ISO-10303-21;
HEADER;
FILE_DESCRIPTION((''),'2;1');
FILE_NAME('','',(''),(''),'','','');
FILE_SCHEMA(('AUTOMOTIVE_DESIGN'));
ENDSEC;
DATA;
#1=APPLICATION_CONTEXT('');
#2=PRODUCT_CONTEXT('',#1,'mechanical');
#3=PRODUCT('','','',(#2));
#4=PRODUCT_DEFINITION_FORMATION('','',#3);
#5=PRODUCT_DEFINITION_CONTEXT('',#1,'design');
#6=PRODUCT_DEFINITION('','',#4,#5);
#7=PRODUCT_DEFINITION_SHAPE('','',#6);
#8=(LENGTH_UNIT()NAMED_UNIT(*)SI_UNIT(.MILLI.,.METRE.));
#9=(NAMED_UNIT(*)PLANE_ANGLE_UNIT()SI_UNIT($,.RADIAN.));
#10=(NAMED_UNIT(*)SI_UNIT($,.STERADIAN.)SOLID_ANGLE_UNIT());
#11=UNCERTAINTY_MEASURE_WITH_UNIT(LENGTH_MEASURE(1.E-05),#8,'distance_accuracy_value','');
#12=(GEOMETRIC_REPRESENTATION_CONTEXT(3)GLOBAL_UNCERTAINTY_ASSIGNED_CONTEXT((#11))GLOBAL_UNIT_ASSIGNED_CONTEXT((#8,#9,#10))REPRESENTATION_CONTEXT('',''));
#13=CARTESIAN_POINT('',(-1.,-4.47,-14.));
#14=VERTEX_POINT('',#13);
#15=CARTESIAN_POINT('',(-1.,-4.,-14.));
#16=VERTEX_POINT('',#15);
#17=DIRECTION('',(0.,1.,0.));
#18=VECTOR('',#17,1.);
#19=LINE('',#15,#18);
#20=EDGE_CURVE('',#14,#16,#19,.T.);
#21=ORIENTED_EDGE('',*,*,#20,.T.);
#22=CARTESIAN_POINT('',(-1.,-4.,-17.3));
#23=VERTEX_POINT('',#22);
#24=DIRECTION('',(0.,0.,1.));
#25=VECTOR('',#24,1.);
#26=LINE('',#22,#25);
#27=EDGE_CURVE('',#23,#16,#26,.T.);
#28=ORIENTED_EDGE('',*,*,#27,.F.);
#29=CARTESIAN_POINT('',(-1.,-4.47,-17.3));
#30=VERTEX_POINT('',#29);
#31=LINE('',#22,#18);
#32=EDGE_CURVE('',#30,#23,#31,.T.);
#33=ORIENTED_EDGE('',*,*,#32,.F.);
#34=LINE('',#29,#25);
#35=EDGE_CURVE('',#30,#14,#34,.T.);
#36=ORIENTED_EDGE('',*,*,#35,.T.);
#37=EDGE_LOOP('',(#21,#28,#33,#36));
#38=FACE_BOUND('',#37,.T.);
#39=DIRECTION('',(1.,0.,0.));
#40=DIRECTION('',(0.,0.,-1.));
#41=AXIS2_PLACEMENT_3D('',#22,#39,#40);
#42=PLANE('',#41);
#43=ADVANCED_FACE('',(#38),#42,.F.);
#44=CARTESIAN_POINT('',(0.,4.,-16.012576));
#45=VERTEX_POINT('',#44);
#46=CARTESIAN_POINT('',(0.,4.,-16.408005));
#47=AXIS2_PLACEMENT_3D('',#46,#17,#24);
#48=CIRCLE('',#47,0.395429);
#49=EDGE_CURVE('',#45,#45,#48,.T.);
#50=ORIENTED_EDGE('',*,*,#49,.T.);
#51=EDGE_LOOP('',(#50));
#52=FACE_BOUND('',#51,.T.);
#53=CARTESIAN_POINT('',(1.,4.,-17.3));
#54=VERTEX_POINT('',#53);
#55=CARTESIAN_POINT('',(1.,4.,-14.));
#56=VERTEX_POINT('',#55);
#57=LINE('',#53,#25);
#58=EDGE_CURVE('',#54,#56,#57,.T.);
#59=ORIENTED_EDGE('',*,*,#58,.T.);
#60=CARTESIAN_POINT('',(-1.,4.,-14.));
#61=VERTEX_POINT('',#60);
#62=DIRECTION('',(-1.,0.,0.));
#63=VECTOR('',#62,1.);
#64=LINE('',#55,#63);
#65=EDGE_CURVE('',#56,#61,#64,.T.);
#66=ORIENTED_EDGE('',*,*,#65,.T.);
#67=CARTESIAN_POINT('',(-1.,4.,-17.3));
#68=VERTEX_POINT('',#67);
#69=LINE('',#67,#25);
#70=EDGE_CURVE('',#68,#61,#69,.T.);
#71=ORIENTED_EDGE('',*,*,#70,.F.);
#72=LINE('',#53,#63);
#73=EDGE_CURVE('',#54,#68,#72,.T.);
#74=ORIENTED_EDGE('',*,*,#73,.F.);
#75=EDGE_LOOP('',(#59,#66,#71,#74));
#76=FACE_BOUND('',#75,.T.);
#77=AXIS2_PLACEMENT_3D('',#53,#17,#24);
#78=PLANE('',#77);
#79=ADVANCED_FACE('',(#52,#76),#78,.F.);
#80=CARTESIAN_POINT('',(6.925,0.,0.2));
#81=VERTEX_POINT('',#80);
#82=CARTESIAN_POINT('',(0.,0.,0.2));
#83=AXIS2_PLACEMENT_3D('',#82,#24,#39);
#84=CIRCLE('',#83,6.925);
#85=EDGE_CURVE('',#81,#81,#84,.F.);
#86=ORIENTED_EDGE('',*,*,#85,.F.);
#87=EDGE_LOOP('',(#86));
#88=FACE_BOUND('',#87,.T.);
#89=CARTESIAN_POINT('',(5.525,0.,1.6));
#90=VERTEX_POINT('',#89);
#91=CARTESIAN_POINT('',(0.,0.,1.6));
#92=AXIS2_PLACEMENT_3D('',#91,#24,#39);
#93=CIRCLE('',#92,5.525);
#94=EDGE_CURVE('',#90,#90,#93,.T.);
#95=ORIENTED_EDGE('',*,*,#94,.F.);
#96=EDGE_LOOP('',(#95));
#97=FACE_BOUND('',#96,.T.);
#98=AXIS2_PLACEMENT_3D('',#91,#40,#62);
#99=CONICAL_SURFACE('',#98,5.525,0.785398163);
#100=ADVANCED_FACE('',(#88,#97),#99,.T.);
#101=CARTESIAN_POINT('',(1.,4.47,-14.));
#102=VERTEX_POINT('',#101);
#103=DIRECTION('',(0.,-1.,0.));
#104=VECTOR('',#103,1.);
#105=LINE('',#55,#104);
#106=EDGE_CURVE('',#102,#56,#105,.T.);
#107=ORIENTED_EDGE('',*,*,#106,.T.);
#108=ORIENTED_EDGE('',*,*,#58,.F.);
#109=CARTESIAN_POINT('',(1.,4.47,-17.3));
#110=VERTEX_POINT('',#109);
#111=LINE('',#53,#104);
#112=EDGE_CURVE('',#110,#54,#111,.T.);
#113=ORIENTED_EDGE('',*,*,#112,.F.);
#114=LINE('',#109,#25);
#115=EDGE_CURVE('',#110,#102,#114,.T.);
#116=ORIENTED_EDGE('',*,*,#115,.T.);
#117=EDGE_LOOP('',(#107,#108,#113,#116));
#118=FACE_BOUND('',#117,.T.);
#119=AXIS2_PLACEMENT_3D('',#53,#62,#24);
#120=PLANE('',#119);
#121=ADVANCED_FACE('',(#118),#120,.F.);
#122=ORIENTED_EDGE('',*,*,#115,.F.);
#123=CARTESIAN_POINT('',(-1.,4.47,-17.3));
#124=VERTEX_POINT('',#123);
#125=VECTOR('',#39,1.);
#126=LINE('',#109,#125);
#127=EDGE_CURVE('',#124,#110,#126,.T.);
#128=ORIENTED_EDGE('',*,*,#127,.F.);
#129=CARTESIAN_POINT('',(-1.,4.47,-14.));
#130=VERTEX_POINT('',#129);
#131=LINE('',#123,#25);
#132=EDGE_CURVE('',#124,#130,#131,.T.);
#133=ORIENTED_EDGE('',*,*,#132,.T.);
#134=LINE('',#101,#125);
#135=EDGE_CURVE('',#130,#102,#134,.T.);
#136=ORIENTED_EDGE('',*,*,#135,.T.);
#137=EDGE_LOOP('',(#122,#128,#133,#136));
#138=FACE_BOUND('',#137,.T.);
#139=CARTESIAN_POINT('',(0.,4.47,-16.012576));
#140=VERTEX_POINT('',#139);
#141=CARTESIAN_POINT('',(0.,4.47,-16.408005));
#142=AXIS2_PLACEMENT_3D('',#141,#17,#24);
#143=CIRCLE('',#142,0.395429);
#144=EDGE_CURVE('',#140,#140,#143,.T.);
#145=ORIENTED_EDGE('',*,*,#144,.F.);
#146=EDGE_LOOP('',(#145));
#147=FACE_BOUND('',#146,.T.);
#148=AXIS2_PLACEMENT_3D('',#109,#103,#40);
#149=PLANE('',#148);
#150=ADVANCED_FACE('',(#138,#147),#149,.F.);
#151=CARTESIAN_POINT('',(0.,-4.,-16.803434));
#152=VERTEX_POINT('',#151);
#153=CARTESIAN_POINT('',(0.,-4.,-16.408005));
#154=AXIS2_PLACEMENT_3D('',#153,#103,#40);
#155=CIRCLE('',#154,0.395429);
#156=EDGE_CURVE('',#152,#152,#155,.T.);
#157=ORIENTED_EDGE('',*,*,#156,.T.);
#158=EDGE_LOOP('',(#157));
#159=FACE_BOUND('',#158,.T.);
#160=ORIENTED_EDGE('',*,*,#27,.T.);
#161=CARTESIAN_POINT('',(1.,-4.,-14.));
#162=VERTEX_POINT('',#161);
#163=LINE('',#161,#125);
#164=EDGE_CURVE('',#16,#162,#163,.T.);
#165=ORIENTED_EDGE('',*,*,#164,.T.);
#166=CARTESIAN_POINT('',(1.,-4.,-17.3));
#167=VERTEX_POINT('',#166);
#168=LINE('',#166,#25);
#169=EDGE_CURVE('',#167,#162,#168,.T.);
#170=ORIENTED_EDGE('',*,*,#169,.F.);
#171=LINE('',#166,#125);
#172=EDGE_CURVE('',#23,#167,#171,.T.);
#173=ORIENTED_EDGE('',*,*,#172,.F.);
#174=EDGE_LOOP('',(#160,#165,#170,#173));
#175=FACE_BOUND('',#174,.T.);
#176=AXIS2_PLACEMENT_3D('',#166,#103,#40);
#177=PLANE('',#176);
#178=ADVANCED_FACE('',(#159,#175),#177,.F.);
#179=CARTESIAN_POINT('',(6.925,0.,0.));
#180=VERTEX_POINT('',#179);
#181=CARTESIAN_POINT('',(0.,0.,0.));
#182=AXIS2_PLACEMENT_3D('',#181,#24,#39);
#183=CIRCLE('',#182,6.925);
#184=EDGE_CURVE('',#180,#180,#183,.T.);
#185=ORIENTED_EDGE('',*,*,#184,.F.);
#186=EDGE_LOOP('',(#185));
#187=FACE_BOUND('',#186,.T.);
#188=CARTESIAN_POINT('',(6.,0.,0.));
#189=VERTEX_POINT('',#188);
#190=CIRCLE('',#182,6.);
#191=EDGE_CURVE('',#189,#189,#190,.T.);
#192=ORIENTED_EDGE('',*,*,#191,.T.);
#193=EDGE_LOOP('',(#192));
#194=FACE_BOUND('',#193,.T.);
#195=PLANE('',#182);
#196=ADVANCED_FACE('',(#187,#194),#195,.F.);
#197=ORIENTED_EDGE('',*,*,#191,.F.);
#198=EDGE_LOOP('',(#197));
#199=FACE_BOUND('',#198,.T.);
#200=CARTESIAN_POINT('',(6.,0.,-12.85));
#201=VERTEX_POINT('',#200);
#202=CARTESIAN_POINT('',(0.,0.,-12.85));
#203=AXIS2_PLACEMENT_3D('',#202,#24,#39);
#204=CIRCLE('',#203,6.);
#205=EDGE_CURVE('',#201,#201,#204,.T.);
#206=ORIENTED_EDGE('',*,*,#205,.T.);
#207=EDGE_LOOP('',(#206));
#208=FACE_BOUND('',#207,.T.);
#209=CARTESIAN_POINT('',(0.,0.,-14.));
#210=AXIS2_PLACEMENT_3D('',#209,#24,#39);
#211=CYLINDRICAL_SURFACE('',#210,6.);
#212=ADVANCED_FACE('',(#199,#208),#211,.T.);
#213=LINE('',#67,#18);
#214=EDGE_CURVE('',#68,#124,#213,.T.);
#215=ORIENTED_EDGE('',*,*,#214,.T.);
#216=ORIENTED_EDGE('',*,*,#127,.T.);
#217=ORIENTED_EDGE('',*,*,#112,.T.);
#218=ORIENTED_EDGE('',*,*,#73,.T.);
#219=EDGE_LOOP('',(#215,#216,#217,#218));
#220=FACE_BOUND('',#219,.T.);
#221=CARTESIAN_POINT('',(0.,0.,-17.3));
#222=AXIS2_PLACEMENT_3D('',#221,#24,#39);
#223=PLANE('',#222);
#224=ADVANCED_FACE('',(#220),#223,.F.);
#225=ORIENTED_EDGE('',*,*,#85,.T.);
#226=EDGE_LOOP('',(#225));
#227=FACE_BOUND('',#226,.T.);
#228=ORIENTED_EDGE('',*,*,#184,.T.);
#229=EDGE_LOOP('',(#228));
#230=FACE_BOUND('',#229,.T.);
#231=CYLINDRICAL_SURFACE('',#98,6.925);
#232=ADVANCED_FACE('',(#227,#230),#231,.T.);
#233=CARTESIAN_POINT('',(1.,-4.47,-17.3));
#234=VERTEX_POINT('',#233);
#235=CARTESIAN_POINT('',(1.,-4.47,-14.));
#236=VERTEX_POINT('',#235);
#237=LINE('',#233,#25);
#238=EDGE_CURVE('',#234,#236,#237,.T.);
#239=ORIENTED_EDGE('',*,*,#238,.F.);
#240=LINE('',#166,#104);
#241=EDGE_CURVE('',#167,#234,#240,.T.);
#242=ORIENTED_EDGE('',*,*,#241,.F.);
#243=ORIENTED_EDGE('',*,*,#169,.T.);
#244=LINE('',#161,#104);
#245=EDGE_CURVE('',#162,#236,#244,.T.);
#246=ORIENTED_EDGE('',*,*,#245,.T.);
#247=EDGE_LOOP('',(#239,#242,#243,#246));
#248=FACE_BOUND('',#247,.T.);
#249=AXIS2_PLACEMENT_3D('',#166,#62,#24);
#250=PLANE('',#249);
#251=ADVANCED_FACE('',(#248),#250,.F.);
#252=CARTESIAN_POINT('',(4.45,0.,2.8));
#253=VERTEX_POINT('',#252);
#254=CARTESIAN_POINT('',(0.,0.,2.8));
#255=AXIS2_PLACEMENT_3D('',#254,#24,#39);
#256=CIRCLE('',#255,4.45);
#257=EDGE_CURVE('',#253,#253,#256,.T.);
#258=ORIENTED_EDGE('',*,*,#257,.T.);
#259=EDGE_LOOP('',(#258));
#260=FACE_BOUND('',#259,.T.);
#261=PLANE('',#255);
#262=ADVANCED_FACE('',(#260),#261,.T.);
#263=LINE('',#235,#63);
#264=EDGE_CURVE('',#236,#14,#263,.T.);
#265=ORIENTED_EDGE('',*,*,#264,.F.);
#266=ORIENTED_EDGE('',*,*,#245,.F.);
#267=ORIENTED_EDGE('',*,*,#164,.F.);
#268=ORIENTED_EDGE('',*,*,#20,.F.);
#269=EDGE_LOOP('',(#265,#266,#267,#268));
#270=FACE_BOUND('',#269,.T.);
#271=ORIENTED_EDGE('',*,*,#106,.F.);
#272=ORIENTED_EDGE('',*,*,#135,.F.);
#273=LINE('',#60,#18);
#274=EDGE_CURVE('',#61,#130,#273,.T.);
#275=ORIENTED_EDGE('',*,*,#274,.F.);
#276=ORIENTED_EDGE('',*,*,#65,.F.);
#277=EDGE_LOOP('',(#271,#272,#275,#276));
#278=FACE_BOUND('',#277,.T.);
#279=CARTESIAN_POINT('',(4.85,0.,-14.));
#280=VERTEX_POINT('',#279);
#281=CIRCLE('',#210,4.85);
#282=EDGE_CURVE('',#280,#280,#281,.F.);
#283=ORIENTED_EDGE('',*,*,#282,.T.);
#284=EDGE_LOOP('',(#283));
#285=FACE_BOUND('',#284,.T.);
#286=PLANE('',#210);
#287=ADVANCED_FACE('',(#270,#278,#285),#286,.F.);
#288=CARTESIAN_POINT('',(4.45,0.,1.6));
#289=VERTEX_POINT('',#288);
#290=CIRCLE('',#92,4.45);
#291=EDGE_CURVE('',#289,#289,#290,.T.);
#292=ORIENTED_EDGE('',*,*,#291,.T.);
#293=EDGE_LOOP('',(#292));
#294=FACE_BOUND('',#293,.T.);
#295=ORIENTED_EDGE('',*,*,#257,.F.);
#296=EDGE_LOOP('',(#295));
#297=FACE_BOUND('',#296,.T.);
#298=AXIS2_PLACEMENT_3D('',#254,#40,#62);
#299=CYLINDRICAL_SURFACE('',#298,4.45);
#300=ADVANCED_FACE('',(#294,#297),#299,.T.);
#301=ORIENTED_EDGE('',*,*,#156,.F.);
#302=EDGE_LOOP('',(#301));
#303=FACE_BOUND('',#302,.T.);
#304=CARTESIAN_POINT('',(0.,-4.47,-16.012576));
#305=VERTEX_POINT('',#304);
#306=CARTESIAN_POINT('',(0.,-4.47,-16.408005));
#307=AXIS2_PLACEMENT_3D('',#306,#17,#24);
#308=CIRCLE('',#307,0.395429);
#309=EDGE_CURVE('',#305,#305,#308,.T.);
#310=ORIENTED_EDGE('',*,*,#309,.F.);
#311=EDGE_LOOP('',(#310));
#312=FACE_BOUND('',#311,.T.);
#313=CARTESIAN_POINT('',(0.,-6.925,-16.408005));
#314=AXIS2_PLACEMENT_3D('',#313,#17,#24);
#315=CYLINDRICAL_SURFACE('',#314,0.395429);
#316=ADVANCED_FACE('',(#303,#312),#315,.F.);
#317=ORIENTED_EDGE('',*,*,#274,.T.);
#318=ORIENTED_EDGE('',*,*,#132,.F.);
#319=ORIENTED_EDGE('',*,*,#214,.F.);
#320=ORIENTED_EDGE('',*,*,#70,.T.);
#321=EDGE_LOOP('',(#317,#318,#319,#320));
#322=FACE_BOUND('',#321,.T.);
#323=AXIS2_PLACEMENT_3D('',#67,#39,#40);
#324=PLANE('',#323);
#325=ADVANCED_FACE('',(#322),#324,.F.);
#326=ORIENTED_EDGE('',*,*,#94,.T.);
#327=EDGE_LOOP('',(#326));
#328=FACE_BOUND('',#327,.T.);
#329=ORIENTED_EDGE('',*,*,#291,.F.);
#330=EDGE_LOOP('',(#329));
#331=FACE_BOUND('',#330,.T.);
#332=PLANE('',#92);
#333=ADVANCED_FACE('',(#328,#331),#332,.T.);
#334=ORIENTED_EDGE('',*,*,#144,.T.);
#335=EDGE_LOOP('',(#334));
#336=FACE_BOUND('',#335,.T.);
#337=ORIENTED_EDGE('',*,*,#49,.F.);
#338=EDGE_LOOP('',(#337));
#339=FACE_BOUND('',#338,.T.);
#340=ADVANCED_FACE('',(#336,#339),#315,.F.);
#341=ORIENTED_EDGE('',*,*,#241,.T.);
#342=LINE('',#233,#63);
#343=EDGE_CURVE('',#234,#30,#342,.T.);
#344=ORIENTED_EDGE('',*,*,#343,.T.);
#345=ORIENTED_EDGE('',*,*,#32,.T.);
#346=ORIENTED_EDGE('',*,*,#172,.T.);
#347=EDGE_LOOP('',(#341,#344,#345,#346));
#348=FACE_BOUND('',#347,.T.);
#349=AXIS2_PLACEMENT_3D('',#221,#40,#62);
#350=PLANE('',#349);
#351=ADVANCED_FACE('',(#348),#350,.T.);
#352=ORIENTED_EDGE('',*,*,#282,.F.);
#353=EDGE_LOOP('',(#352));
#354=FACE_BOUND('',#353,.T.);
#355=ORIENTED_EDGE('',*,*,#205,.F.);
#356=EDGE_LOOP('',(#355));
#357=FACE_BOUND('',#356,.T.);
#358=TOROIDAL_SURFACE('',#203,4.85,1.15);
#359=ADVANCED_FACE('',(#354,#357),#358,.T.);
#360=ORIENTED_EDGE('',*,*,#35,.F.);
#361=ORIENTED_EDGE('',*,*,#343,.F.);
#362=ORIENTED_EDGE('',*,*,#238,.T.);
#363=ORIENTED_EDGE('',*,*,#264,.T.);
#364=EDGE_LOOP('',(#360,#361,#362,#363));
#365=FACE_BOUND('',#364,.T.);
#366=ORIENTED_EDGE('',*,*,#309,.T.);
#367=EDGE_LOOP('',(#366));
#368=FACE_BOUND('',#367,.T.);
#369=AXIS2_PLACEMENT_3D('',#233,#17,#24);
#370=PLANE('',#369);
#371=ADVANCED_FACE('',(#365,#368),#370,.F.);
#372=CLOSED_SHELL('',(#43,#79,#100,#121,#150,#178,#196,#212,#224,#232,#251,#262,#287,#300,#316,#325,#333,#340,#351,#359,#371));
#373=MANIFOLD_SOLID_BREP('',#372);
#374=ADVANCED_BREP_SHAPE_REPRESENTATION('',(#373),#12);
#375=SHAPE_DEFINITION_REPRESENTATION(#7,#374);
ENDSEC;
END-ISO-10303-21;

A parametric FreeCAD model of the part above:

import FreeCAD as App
import Part
import Sketcher
Q = App.Units.Quantity


def edges_at(feature, points):
    """Names of the edges that pass closest to the given points."""
    edges = feature.Shape.Edges
    near = lambda p: min(range(len(edges)), key=lambda i: edges[i].distToShape(Part.Vertex(*p))[0])
    return sorted({f"Edge{near(p) + 1}" for p in points})

doc = App.newDocument("Part")
params = doc.addObject("Spreadsheet::Sheet", "Params")
for row, (alias, value) in enumerate([
    ("sketch1_diameter", "12 mm"),
    ("pad1_length", "14 mm"),
    ("sketch2_diameter", "13.85 mm"),
    ("pad2_length", "1.6 mm"),
    ("chamfer_size", "1.4 mm"),
    ("sketch3_diameter", "8.9 mm"),
    ("pad3_length", "1.2 mm"),
    ("fillet_radius", "1.15 mm"),
    ("sketch4_width", "2 mm"),
    ("sketch4_height", "0.47 mm"),
    ("pad4_length", "3.3 mm"),
], start=1):
    params.set(f"A{row}", alias)
    params.set(f"B{row}", "=" + value)
    params.setAlias(f"B{row}", alias)

body = doc.addObject("PartDesign::Body", "Body")

sketch1 = doc.addObject("Sketcher::SketchObject", "Sketch")
body.addObject(sketch1)
sketch1.AttachmentSupport = (doc.XY_Plane, [""])
sketch1.MapMode = "FlatFace"
sketch1.addGeometry(Part.Circle(App.Vector(0, 0, 0), App.Vector(0, 0, 1), 6), False)
sketch1.addConstraint(Sketcher.Constraint("Coincident", 0, 3, -1, 1))
sketch1.addConstraint(Sketcher.Constraint("Diameter", 0, Q("12 mm")))
sketch1.setExpression("Constraints[1]", "Params.sketch1_diameter")
pad1 = doc.addObject("PartDesign::Pad", "Pad")
body.addObject(pad1)
pad1.Profile = sketch1
pad1.setExpression("Length", "Params.pad1_length")
pad1.Reversed = True

sketch2 = doc.addObject("Sketcher::SketchObject", "Sketch001")
body.addObject(sketch2)
sketch2.AttachmentSupport = (doc.XY_Plane, [""])
sketch2.MapMode = "FlatFace"
sketch2.addGeometry(Part.Circle(App.Vector(0, 0, 0), App.Vector(0, 0, 1), 7), False)
sketch2.addConstraint(Sketcher.Constraint("Coincident", 0, 3, -1, 1))
sketch2.addConstraint(Sketcher.Constraint("Diameter", 0, Q("13.85 mm")))
sketch2.setExpression("Constraints[1]", "Params.sketch2_diameter")
pad2 = doc.addObject("PartDesign::Pad", "Pad001")
body.addObject(pad2)
pad2.Profile = sketch2
pad2.setExpression("Length", "Params.pad2_length")
doc.recompute()

chamfer = doc.addObject("PartDesign::Chamfer", "Chamfer")
body.addObject(chamfer)
chamfer.Base = (pad2, edges_at(pad2, [(-6.925, 0, 1.6)]))
chamfer.setExpression("Size", "Params.chamfer_size")

sketch3 = doc.addObject("Sketcher::SketchObject", "Sketch002")
body.addObject(sketch3)
sketch3.AttachmentSupport = (doc.XY_Plane, [""])
sketch3.MapMode = "FlatFace"
sketch3.AttachmentOffset = App.Placement(App.Vector(0, 0, 1.6), App.Rotation())
sketch3.addGeometry(Part.Circle(App.Vector(0, 0, 0), App.Vector(0, 0, 1), 4.5), False)
sketch3.addConstraint(Sketcher.Constraint("Coincident", 0, 3, -1, 1))
sketch3.addConstraint(Sketcher.Constraint("Diameter", 0, Q("8.9 mm")))
sketch3.setExpression("Constraints[1]", "Params.sketch3_diameter")
pad3 = doc.addObject("PartDesign::Pad", "Pad002")
body.addObject(pad3)
pad3.Profile = sketch3
pad3.setExpression("Length", "Params.pad3_length")
doc.recompute()

fillet = doc.addObject("PartDesign::Fillet", "Fillet")
body.addObject(fillet)
fillet.Base = (pad3, edges_at(pad3, [(-6, 0, -14)]))
fillet.setExpression("Radius", "Params.fillet_radius")

sketch4 = doc.addObject("Sketcher::SketchObject", "Sketch003")
body.addObject(sketch4)
sketch4.AttachmentSupport = (doc.XY_Plane, [""])
sketch4.MapMode = "FlatFace"
sketch4.AttachmentOffset = App.Placement(App.Vector(0, 0, -14), App.Rotation())
sketch4.addGeometry(Part.LineSegment(App.Vector(1, -4, 0), App.Vector(1, -4.47, 0)), False)
sketch4.addGeometry(Part.LineSegment(App.Vector(1, -4.47, 0), App.Vector(-1, -4.47, 0)), False)
sketch4.addGeometry(Part.LineSegment(App.Vector(-1, -4.47, 0), App.Vector(-1, -4, 0)), False)
sketch4.addGeometry(Part.LineSegment(App.Vector(-1, -4, 0), App.Vector(1, -4, 0)), False)
sketch4.addGeometry(Part.LineSegment(App.Vector(1, 4.47, 0), App.Vector(1, 4, 0)), False)
sketch4.addGeometry(Part.LineSegment(App.Vector(1, 4, 0), App.Vector(-1, 4, 0)), False)
sketch4.addGeometry(Part.LineSegment(App.Vector(-1, 4, 0), App.Vector(-1, 4.47, 0)), False)
sketch4.addGeometry(Part.LineSegment(App.Vector(-1, 4.47, 0), App.Vector(1, 4.47, 0)), False)
sketch4.addConstraint(Sketcher.Constraint("Coincident", 0, 2, 1, 1))
sketch4.addConstraint(Sketcher.Constraint("Coincident", 1, 2, 2, 1))
sketch4.addConstraint(Sketcher.Constraint("Coincident", 2, 2, 3, 1))
sketch4.addConstraint(Sketcher.Constraint("Coincident", 3, 2, 0, 1))
sketch4.addConstraint(Sketcher.Constraint("Coincident", 4, 2, 5, 1))
sketch4.addConstraint(Sketcher.Constraint("Coincident", 5, 2, 6, 1))
sketch4.addConstraint(Sketcher.Constraint("Coincident", 6, 2, 7, 1))
sketch4.addConstraint(Sketcher.Constraint("Coincident", 7, 2, 4, 1))
sketch4.addConstraint(Sketcher.Constraint("Vertical", 0))
sketch4.addConstraint(Sketcher.Constraint("Horizontal", 1))
sketch4.addConstraint(Sketcher.Constraint("Vertical", 2))
sketch4.addConstraint(Sketcher.Constraint("Horizontal", 3))
sketch4.addConstraint(Sketcher.Constraint("Vertical", 4))
sketch4.addConstraint(Sketcher.Constraint("Horizontal", 5))
sketch4.addConstraint(Sketcher.Constraint("Vertical", 6))
sketch4.addConstraint(Sketcher.Constraint("Horizontal", 7))
sketch4.addConstraint(Sketcher.Constraint("Symmetric", 2, 2, 4, 2, -1, 1))
sketch4.addConstraint(Sketcher.Constraint("Symmetric", 0, 2, 6, 2, -1, 1))
sketch4.addConstraint(Sketcher.Constraint("Vertical", 3, 2, 4, 2))
sketch4.addConstraint(Sketcher.Constraint("DistanceX", 1, 2, 1, 1, Q("2 mm")))
sketch4.addConstraint(Sketcher.Constraint("DistanceY", 2, 2, -1, 1, Q("4 mm")))
sketch4.addConstraint(Sketcher.Constraint("DistanceY", 0, 2, 0, 1, Q("0.47 mm")))
sketch4.setExpression("Constraints[19]", "Params.sketch4_width")
sketch4.setExpression("Constraints[21]", "Params.sketch4_height")
pad4 = doc.addObject("PartDesign::Pad", "Pad003")
body.addObject(pad4)
pad4.Profile = sketch4
pad4.setExpression("Length", "Params.pad4_length")
pad4.Reversed = True

sketch5 = doc.addObject("Sketcher::SketchObject", "Sketch004")
body.addObject(sketch5)
sketch5.AttachmentSupport = (doc.XZ_Plane, [""])
sketch5.MapMode = "FlatFace"
sketch5.AttachmentOffset = App.Placement(App.Vector(0, 0, -4.47), App.Rotation())
sketch5.addGeometry(Part.Circle(App.Vector(0, -16.41, 0), App.Vector(0, 0, 1), 0.4), False)
sketch5.addConstraint(Sketcher.Constraint("PointOnObject", 0, 3, -2))
sketch5.addConstraint(Sketcher.Constraint("Diameter", 0, Q("0.790858 mm")))
sketch5.addConstraint(Sketcher.Constraint("DistanceY", 0, 3, -1, 1, Q("16.408005 mm")))
pocket1 = doc.addObject("PartDesign::Pocket", "Pocket")
body.addObject(pocket1)
pocket1.Profile = sketch5
pocket1.Type = "ThroughAll"
pocket1.Reversed = True

doc.recompute()
